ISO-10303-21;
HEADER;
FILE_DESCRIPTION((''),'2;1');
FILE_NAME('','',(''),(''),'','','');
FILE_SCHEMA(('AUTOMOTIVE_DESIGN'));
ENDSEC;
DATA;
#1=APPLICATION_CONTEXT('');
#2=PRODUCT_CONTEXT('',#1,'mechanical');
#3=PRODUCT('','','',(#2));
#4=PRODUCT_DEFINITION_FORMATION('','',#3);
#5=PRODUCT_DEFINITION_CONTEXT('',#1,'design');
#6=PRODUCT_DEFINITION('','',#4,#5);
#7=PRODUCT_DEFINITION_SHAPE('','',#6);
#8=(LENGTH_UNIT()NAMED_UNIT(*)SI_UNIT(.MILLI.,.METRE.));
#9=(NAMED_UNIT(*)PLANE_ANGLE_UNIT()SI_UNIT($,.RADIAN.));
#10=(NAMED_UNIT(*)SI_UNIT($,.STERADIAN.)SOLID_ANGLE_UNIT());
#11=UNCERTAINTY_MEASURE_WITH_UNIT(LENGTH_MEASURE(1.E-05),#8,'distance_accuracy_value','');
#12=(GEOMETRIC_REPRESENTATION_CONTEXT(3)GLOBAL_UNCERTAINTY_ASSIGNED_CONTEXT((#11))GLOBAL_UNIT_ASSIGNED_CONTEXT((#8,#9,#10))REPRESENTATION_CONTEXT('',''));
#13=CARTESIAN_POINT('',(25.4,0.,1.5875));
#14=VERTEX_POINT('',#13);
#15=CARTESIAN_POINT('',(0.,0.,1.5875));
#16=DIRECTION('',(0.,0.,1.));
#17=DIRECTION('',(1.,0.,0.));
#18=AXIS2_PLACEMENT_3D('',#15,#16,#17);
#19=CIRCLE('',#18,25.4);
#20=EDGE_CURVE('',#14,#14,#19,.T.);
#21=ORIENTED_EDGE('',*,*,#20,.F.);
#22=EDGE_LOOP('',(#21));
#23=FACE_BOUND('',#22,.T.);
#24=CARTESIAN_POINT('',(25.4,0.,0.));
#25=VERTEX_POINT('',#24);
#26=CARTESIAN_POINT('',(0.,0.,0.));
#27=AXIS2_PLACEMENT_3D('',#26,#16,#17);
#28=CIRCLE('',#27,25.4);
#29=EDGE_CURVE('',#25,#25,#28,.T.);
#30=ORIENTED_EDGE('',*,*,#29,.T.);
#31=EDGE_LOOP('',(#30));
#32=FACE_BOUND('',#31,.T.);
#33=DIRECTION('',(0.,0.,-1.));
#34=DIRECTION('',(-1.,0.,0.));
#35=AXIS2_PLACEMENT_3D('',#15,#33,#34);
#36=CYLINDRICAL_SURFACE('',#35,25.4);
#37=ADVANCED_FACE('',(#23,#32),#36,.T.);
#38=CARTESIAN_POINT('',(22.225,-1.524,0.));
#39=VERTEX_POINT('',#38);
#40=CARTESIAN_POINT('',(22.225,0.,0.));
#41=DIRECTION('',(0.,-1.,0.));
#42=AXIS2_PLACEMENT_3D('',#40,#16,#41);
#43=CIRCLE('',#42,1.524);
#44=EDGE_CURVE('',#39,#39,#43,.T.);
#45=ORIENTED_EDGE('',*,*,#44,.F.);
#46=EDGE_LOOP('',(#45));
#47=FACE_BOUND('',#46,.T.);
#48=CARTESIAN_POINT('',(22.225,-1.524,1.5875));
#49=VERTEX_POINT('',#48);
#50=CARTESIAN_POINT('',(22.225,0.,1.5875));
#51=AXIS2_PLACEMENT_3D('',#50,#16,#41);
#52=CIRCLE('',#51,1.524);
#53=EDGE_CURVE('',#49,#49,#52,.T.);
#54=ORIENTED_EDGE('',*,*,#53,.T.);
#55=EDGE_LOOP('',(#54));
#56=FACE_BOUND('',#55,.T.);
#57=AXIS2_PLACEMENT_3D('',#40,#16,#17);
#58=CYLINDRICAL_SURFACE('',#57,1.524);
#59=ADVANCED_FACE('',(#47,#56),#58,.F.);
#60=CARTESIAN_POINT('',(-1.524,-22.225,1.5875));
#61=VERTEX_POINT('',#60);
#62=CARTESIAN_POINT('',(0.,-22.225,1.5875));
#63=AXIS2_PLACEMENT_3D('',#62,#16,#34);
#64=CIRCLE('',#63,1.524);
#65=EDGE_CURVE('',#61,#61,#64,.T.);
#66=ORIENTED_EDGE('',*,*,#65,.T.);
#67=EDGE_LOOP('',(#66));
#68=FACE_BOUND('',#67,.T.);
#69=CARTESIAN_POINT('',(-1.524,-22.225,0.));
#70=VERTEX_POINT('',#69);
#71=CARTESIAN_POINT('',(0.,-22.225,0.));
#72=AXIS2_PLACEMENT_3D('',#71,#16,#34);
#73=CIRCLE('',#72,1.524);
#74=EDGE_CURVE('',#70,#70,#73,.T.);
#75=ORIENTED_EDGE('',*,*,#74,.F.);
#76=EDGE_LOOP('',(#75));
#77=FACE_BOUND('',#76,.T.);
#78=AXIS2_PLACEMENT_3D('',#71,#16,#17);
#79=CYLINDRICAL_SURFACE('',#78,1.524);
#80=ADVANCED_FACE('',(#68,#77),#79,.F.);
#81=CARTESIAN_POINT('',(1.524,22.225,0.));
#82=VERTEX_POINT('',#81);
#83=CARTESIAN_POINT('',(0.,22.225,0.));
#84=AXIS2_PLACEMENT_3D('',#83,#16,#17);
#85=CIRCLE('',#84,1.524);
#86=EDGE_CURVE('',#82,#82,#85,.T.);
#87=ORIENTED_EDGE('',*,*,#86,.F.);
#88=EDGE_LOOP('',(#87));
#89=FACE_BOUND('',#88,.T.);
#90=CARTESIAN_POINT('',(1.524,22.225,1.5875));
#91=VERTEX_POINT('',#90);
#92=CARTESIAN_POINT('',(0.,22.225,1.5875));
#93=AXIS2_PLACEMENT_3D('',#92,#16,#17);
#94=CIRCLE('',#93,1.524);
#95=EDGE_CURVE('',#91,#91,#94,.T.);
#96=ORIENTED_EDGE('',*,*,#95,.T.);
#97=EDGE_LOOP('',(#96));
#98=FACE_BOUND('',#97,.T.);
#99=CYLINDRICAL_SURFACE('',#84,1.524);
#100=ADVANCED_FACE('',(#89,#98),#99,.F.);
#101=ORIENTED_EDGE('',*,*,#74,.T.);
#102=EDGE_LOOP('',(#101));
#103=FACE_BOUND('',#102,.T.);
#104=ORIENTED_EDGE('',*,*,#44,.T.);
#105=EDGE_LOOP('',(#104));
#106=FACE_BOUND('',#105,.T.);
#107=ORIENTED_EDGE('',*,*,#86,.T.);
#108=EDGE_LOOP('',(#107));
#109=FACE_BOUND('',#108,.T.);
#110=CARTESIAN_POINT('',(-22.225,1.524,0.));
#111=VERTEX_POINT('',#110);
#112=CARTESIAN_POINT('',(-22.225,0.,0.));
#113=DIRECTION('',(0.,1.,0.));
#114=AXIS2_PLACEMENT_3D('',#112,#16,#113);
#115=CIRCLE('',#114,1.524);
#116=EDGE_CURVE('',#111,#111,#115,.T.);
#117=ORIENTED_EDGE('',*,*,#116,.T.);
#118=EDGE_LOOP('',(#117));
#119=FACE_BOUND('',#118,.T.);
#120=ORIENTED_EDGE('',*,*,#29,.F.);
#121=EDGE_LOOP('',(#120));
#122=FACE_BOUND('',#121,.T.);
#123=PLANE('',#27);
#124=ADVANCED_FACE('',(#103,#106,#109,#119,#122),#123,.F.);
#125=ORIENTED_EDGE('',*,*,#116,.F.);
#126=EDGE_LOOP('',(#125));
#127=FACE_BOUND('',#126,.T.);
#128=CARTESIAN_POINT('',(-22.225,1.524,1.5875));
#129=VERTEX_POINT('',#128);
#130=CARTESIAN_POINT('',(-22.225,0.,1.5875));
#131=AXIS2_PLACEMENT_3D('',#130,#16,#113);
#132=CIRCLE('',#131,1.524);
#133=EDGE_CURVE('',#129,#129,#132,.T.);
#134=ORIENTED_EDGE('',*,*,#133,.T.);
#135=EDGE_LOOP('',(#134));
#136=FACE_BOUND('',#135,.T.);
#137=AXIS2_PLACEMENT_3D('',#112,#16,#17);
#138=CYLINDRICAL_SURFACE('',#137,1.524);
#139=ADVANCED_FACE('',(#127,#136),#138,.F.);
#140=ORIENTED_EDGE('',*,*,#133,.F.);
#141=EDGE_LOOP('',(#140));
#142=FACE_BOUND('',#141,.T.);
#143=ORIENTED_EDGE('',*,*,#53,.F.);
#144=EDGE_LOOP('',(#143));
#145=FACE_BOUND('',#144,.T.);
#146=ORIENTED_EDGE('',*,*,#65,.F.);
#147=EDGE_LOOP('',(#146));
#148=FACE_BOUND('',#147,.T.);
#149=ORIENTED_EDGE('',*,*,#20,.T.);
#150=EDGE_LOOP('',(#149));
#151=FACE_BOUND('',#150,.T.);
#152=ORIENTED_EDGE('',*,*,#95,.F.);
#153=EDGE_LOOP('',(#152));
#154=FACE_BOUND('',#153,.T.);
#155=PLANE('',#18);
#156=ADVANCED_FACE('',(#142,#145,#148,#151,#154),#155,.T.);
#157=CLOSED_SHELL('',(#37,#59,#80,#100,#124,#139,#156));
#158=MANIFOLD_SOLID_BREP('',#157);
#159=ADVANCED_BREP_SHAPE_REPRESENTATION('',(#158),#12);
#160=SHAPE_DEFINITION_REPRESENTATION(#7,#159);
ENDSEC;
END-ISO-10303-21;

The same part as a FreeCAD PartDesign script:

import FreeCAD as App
import Part
import Sketcher

V = App.Vector
Q = App.Units.Quantity

doc = App.newDocument("Part")
params = doc.addObject("Spreadsheet::Sheet", "Params")
for row, (alias, value) in enumerate([
    ("sketch1_diameter", "2 in"),
    ("pad1_length", "0.0625 in"),
    ("sketch2_diameter", "0.12 in"),
], start=1):
    params.set(f"A{row}", alias)
    params.set(f"B{row}", "=" + value)
    params.setAlias(f"B{row}", alias)

body = doc.addObject("PartDesign::Body", "Body")

sketch1 = body.newObject("Sketcher::SketchObject", "Sketch")
sketch1.AttachmentSupport = (doc.getObject("XY_Plane"), [""])
sketch1.MapMode = "FlatFace"
sketch1.addGeometry(Part.Circle(V(0, 0, 0), V(0, 0, 1), 25.4), False)
sketch1.addConstraint([
    Sketcher.Constraint("Coincident", 0, 3, -1, 1),
    Sketcher.Constraint("Diameter", 0, Q("2 in")),
])
sketch1.setExpression("Constraints[1]", "Params.sketch1_diameter")
pad1 = body.newObject("PartDesign::Pad", "Pad")
pad1.Profile = sketch1
pad1.setExpression("Length", "Params.pad1_length")

sketch2 = body.newObject("Sketcher::SketchObject", "Sketch001")
sketch2.AttachmentSupport = (doc.getObject("XY_Plane"), [""])
sketch2.MapMode = "FlatFace"
sketch2.AttachmentOffset = App.Placement(V(0, 0, 0.0625 * 25.4), App.Rotation())
sketch2.addGeometry(Part.Circle(V(0, 22.225, 0), V(0, 0, 1), 1.524), False)
sketch2.addConstraint([
    Sketcher.Constraint("PointOnObject", 0, 3, -2),
    Sketcher.Constraint("Diameter", 0, Q("0.12 in")),
    Sketcher.Constraint("DistanceY", -1, 1, 0, 3, Q("0.875 in")),
])
sketch2.setExpression("Constraints[1]", "Params.sketch2_diameter")
pocket1 = body.newObject("PartDesign::Pocket", "Pocket")
pocket1.Profile = sketch2
pocket1.Type = "ThroughAll"
doc.recompute()

polarpattern = body.newObject("PartDesign::PolarPattern", "PolarPattern")
polarpattern.Originals = [pocket1]
polarpattern.Axis = (doc.getObject("Z_Axis"), [""])
polarpattern.Angle = 360
polarpattern.Occurrences = 4
body.Tip = polarpattern

doc.recompute()
